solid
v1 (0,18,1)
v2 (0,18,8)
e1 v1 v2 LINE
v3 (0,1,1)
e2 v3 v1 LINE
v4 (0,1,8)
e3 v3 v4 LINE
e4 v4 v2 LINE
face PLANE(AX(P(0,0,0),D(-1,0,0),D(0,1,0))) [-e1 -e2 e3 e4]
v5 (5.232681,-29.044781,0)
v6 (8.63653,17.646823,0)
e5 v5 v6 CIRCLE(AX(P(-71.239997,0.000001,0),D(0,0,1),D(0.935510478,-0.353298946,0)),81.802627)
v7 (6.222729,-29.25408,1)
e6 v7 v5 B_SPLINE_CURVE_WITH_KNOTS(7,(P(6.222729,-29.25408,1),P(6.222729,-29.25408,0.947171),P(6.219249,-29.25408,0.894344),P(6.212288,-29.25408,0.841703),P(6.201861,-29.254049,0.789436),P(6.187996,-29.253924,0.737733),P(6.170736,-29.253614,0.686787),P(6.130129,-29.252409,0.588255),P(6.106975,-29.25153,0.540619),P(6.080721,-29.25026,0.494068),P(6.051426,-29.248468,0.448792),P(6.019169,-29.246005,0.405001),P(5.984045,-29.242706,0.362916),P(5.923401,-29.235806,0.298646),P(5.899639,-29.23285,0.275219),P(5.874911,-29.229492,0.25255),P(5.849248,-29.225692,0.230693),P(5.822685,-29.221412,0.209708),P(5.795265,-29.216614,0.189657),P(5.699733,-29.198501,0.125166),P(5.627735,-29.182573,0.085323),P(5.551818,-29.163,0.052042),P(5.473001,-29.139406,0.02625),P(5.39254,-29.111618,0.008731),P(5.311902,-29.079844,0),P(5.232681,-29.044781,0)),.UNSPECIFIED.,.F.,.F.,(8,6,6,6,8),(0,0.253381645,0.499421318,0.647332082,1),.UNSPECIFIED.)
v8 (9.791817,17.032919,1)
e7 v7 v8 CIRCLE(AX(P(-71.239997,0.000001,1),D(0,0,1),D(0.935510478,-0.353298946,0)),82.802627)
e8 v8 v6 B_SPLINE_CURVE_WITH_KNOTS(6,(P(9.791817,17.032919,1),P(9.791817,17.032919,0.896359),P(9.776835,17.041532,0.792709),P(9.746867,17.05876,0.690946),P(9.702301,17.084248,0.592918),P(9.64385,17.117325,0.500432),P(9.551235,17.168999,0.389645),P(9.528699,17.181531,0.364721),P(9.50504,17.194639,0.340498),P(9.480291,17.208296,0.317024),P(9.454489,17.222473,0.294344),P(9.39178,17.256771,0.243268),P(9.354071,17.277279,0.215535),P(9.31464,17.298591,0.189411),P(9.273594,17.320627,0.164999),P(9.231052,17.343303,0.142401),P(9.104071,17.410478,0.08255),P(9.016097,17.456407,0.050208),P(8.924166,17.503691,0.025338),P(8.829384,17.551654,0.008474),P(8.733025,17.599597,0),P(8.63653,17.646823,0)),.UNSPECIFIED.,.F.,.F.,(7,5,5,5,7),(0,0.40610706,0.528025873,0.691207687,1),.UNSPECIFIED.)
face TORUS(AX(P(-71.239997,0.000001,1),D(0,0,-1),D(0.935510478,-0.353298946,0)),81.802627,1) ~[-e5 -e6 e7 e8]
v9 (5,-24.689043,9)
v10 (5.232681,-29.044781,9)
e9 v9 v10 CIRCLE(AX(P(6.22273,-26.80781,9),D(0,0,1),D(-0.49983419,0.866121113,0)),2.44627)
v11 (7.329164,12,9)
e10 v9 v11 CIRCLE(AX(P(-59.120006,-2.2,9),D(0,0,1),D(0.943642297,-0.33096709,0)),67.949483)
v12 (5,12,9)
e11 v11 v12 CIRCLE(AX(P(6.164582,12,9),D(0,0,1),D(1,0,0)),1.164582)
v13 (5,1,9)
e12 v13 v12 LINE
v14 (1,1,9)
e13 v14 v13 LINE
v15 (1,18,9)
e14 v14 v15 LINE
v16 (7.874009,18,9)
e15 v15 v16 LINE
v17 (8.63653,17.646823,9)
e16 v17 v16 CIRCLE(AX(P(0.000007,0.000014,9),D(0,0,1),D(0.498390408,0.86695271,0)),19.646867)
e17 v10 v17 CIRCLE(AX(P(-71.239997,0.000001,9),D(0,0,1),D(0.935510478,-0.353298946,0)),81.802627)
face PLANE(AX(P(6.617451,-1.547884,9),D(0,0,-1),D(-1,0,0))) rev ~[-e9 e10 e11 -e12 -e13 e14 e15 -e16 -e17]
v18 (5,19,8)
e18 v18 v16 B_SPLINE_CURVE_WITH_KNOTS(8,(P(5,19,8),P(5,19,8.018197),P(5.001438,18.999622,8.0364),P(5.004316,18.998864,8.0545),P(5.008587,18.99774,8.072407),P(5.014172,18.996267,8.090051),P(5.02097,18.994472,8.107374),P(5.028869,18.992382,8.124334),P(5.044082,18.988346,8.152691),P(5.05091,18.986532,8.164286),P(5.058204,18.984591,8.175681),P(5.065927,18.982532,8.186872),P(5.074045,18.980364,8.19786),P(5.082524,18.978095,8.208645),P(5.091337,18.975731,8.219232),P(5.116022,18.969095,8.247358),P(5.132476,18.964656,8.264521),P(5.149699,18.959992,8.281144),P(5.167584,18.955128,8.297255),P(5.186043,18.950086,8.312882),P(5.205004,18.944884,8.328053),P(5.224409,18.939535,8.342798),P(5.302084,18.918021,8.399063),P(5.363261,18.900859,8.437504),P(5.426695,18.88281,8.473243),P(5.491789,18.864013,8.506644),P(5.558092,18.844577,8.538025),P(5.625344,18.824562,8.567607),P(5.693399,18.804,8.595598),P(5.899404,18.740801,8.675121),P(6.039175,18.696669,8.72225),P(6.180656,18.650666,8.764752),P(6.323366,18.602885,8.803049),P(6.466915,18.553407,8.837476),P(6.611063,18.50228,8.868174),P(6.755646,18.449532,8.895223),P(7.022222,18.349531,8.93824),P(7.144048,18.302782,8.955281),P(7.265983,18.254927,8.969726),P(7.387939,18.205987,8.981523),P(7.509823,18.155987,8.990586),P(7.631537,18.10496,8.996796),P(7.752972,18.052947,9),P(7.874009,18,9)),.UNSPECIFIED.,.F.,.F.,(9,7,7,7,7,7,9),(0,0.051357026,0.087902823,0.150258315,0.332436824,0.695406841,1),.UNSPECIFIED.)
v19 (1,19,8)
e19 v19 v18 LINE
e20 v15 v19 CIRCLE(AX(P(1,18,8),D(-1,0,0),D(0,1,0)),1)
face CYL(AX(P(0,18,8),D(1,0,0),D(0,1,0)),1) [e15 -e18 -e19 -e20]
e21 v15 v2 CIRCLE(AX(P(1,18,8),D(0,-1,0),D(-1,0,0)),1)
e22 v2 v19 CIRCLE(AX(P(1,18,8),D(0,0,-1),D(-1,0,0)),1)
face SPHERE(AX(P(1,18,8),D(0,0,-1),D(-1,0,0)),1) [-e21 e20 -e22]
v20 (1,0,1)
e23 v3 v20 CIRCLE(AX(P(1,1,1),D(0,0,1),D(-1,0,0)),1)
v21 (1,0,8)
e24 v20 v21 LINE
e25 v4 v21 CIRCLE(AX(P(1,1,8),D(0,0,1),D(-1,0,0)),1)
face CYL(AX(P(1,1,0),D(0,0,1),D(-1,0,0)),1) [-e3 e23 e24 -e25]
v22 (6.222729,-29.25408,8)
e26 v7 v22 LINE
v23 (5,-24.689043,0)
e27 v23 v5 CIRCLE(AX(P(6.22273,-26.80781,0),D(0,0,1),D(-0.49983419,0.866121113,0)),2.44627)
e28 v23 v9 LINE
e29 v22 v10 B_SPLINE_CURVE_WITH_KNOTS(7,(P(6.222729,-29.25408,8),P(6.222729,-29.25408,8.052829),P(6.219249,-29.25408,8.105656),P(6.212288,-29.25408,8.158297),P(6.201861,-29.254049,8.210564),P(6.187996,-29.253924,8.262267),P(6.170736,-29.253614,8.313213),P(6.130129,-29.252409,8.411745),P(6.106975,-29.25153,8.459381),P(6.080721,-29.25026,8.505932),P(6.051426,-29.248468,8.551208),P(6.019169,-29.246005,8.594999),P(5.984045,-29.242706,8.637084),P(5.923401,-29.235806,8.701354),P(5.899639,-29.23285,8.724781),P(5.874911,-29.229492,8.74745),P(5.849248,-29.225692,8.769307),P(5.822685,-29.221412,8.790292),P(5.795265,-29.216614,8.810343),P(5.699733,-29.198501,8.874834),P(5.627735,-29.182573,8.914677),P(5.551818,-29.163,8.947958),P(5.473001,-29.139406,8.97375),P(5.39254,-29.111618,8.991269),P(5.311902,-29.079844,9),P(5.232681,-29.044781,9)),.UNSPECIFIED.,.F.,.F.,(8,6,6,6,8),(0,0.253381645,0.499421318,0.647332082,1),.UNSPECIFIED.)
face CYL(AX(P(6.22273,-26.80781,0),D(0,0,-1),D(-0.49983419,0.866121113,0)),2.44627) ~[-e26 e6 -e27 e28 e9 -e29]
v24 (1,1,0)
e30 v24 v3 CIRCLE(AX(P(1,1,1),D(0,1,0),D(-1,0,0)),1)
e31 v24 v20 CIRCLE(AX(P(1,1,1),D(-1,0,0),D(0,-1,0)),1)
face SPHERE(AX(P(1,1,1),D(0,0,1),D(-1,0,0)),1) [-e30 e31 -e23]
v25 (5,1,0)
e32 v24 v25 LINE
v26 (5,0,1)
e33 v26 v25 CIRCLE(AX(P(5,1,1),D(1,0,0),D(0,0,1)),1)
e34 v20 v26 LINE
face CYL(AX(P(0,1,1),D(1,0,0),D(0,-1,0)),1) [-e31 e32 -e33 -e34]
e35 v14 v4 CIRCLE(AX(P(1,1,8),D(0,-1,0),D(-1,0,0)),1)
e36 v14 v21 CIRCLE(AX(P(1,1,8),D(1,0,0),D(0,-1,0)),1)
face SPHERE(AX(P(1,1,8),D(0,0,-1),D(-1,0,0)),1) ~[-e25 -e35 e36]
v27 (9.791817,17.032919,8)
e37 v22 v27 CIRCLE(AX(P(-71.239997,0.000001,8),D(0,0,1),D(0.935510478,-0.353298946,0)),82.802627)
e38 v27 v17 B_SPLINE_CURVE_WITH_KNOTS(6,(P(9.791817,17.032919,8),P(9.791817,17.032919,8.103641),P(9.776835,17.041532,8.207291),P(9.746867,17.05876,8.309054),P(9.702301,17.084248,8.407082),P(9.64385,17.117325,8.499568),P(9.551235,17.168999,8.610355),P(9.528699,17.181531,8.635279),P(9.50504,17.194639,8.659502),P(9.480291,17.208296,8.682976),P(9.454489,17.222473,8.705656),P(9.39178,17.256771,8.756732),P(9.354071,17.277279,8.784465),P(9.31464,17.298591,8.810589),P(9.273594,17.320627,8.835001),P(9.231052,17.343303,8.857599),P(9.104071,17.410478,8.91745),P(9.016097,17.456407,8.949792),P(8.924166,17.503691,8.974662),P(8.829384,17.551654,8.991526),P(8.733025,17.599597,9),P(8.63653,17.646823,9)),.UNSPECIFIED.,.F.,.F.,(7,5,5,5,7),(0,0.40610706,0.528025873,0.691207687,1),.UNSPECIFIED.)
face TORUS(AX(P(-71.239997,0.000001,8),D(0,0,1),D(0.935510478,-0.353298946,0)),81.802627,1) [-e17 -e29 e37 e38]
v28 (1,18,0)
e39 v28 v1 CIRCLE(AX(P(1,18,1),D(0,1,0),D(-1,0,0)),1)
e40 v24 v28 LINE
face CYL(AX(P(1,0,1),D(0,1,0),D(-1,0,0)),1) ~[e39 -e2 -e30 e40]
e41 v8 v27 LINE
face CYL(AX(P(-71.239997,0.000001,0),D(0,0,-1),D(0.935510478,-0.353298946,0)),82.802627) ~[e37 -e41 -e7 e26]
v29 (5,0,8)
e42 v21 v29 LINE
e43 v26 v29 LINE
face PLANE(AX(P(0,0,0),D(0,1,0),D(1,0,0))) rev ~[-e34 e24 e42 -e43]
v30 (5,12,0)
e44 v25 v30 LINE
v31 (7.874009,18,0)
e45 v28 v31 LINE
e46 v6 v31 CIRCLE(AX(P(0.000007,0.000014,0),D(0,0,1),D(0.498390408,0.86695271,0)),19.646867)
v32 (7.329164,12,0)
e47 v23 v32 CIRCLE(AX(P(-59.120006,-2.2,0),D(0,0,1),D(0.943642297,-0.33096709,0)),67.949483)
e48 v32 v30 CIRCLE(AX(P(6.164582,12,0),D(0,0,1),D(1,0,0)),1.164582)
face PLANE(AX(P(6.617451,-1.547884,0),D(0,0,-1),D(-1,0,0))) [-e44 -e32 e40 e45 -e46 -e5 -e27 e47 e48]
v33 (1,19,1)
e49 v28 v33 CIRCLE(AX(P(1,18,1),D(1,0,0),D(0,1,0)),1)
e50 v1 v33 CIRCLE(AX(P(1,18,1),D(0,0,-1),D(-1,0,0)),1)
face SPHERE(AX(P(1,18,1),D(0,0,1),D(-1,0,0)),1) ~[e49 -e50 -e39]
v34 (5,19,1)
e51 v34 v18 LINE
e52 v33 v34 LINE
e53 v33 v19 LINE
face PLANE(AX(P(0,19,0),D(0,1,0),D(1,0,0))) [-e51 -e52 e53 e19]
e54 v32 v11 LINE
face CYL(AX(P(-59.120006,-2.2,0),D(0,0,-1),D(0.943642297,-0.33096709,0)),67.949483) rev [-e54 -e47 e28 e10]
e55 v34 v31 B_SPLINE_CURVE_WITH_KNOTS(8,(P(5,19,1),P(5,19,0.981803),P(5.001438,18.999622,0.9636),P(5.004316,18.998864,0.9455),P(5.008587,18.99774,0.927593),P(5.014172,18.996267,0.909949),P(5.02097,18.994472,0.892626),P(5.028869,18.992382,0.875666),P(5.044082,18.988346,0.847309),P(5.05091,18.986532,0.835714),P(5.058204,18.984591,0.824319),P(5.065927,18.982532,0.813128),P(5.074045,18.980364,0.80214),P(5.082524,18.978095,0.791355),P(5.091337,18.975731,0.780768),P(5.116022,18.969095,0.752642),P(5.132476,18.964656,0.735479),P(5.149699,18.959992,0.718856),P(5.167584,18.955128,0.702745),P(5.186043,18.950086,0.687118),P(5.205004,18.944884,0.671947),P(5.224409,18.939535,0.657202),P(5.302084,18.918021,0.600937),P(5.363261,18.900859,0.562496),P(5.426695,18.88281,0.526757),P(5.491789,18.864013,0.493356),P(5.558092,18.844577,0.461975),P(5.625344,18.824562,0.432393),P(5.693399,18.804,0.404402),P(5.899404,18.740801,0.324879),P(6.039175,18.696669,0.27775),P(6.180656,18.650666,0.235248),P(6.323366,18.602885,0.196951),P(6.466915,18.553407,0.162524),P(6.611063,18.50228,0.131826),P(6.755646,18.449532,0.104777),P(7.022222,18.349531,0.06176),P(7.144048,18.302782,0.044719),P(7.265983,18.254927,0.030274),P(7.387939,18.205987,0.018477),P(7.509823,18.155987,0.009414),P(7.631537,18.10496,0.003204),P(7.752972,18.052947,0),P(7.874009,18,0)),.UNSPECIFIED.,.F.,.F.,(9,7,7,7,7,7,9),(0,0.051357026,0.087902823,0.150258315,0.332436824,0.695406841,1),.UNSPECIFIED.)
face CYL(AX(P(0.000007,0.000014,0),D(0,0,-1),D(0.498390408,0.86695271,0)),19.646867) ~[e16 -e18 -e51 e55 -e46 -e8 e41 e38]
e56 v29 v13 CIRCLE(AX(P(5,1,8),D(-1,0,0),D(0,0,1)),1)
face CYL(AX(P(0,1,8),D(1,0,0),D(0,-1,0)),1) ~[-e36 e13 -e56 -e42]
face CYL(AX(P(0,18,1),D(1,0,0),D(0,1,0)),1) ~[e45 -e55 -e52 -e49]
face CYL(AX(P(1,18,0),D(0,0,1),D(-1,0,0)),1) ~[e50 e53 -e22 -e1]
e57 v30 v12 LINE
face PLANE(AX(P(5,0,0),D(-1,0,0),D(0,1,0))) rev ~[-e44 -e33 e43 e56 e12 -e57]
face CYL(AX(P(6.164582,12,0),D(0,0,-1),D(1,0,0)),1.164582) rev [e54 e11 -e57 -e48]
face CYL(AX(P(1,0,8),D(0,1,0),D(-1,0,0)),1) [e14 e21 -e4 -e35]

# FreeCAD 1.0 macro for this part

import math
import FreeCAD as App
import Part
import Sketcher


def edges_at(feature, points):
    """Names of the edges that pass closest to the given points."""
    edges = feature.Shape.Edges
    near = lambda p: min(range(len(edges)), key=lambda i: edges[i].distToShape(Part.Vertex(*p))[0])
    return sorted({f"Edge{near(p) + 1}" for p in points})

doc = App.newDocument("Part")
body = doc.addObject("PartDesign::Body", "Body")

# Sketch on XY plane
sketch1 = body.newObject("Sketcher::SketchObject", "Sketch")
sketch1.AttachmentSupport = (doc.getObject("XY_Plane"), [""])
sketch1.MapMode = "FlatFace"
sketch1.addGeometry([
    Part.LineSegment(App.Vector(0, 19, 0), App.Vector(0, 0, 0)),  # 0
    Part.LineSegment(App.Vector(0, 0, 0), App.Vector(5, 0, 0)),  # 1
    Part.LineSegment(App.Vector(5, 0, 0), App.Vector(5, 12, 0)),  # 2
    Part.ArcOfCircle(Part.Circle(App.Vector(6.2, 12, 0), App.Vector(0, 0, 1), 1.2), math.radians(0), math.radians(180)),  # 3
    Part.ArcOfCircle(Part.Circle(App.Vector(-59.1, -2.2, 0), App.Vector(0, 0, 1), 67.9), math.radians(-19), math.radians(12)),  # 4
    Part.ArcOfCircle(Part.Circle(App.Vector(6.2, -26.8, 0), App.Vector(0, 0, 1), 2.4), math.radians(120), math.radians(270)),  # 5
    Part.ArcOfCircle(Part.Circle(App.Vector(-71.2, 0, 0), App.Vector(0, 0, 1), 82.8), math.radians(-21), math.radians(12)),  # 6
    Part.ArcOfCircle(Part.Circle(App.Vector(0, 0, 0), App.Vector(0, 0, 1), 19.6), math.radians(60.11), math.radians(75.26)),  # 7
    Part.LineSegment(App.Vector(5, 19, 0), App.Vector(0, 19, 0)),  # 8
], False)
sketch1.addConstraint([
    Sketcher.Constraint("Coincident", 0, 2, 1, 1),
    Sketcher.Constraint("Coincident", 1, 2, 2, 1),
    Sketcher.Constraint("Tangent", 2, 2, 3, 2),
    Sketcher.Constraint("Coincident", 3, 1, 4, 2),
    Sketcher.Constraint("Coincident", 4, 1, 5, 1),
    Sketcher.Constraint("Coincident", 5, 2, 6, 1),
    Sketcher.Constraint("Coincident", 6, 2, 7, 1),
    Sketcher.Constraint("Coincident", 7, 2, 8, 1),
    Sketcher.Constraint("Coincident", 8, 2, 0, 1),
    Sketcher.Constraint("Vertical", 0),
    Sketcher.Constraint("Horizontal", 1),
    Sketcher.Constraint("Vertical", 2),
    Sketcher.Constraint("Horizontal", 8),
    Sketcher.Constraint("Coincident", 0, 2, -1, 1),
    Sketcher.Constraint("PointOnObject", 6, 3, -1),
    Sketcher.Constraint("Horizontal", 2, 2, 3, 1),
    Sketcher.Constraint("Vertical", 2, 2, 4, 1),
    Sketcher.Constraint("Vertical", 4, 1, 7, 2),
    Sketcher.Constraint("DistanceX", 1, 1, 1, 2, 5.0),
    Sketcher.Constraint("DistanceY", 0, 2, 0, 1, 19.0),
    Sketcher.Constraint("DistanceY", 2, 1, 2, 2, 12.0),
    Sketcher.Constraint("DistanceY", 4, 3, -1, 1, 2.2),
    Sketcher.Constraint("Radius", 5, 2.44627),
    Sketcher.Constraint("Radius", 3, 1.164582),
    Sketcher.Constraint("Radius", 4, 67.949483),
    Sketcher.Constraint("Radius", 6, 82.802627),
    Sketcher.Constraint("Radius", 7, 19.646867),
    Sketcher.Constraint("DistanceX", -1, 1, 5, 3, 6.22273),
    Sketcher.Constraint("DistanceX", -1, 1, 5, 2, 6.222729),
    Sketcher.Constraint("DistanceY", -1, 1, 6, 2, 17.032919),
])
pad1 = body.newObject("PartDesign::Pad", "Pad")
pad1.Profile = sketch1
pad1.Length = 9
doc.recompute()

fillet = body.newObject("PartDesign::Fillet", "Fillet")
fillet.Base = (pad1, edges_at(pad1, [
    (0, 0, 4.5),
    (0, 19, 4.5),
    (0, 9.5, 0),
    (0, 9.5, 9),
    (2.5, 19, 9),
    (2.5, 19, 0),
    (2.5, 0, 0),
    (2.5, 0, 9),
    (11.318, -6.366, 9),
    (11.318, -6.366, 0),
]))
fillet.Radius = 1

doc.recompute()
